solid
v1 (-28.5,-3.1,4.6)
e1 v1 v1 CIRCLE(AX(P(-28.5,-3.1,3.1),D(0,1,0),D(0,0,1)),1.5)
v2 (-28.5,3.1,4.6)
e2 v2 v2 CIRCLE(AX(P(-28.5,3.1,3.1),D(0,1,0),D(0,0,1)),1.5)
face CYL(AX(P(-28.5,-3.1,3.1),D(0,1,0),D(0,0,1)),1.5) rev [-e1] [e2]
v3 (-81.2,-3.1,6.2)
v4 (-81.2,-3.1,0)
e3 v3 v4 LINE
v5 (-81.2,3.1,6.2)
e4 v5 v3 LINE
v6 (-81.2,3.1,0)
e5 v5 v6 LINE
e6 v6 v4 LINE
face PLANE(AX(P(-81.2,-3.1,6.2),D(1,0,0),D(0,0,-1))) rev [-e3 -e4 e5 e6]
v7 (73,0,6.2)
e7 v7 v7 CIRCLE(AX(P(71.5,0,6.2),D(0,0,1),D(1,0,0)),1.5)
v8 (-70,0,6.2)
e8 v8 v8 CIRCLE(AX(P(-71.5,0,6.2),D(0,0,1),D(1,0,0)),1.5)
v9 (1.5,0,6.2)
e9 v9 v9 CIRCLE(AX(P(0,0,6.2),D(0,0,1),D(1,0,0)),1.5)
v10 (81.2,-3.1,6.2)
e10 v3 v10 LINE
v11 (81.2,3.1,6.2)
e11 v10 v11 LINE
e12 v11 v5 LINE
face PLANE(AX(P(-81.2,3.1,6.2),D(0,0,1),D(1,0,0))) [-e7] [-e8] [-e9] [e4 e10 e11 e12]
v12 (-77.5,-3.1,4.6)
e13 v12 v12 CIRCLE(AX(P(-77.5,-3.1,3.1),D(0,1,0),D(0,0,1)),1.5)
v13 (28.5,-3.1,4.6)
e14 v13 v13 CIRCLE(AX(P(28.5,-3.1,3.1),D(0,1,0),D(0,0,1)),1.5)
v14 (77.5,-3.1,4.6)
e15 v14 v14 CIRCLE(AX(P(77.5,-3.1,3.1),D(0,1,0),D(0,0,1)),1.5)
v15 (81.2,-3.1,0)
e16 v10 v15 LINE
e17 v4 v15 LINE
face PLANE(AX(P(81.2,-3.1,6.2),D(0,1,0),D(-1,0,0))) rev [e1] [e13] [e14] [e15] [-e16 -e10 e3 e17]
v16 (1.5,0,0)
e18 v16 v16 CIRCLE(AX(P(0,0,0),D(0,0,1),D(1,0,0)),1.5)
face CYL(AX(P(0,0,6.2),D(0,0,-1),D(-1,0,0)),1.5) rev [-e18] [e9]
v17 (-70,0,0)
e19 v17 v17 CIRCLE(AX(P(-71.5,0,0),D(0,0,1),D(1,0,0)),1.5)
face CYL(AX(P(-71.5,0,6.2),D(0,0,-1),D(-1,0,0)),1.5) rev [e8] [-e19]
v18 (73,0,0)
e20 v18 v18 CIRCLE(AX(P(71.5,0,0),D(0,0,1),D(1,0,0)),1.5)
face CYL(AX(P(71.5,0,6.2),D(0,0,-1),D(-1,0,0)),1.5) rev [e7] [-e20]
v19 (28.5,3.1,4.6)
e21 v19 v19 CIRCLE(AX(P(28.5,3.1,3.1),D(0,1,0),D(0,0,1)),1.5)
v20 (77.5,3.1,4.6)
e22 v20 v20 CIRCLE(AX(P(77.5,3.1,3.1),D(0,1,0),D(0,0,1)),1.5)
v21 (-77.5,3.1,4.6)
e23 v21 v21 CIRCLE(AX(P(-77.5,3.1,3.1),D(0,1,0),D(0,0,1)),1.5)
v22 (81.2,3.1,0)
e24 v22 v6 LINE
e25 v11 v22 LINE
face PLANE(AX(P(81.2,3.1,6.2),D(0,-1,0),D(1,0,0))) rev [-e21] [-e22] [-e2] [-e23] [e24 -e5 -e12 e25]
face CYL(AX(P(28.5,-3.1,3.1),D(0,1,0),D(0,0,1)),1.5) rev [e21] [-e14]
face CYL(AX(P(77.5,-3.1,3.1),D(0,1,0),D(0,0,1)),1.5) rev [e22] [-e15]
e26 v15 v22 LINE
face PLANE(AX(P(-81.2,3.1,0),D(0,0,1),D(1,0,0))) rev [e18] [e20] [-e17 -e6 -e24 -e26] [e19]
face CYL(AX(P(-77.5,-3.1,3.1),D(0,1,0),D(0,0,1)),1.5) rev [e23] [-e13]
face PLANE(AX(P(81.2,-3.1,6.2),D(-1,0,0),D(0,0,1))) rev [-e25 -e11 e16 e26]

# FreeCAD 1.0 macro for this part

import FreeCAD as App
import Part
import Sketcher
from FreeCAD import Vector
Q = App.Units.Quantity


def add_polygon(sketch, points):
    """Adds a closed chain of lines whose ends are joined by coincident constraints."""
    first, n = sketch.GeometryCount, len(points)
    for a, b in zip(points, points[1:] + points[:1]):
        sketch.addGeometry(Part.LineSegment(App.Vector(*a, 0), App.Vector(*b, 0)), False)
    for i in range(n):
        sketch.addConstraint(Sketcher.Constraint("Coincident", first + i, 2, first + (i + 1) % n, 1))

doc = App.newDocument("Part")
params = doc.addObject("Spreadsheet::Sheet", "Params")
for row, (alias, value) in enumerate([
    ("sketch1_diameter", "3 mm"),
    ("sketch1_width", "162.4 mm"),
    ("sketch1_height", "6.2 mm"),
    ("pad1_length", "6.2 mm"),
    ("sketch2_diameter", "3 mm"),
    ("pocket1_length", "6.2 mm"),
], start=1):
    params.set(f"A{row}", alias)
    params.set(f"B{row}", "=" + value)
    params.setAlias(f"B{row}", alias)

body = doc.addObject("PartDesign::Body", "Body")

sketch1 = doc.addObject("Sketcher::SketchObject", "Sketch")
body.addObject(sketch1)
sketch1.AttachmentSupport = (doc.XY_Plane, [""])
sketch1.MapMode = "FlatFace"
add_polygon(sketch1, [(-81.2, 3.1), (-81.2, -3.1), (81.2, -3.1), (81.2, 3.1)])
sketch1.addGeometry(Part.Circle(Vector(-71.5, 0, 0), Vector(0, 0, 1), 1.5), False)
sketch1.addGeometry(Part.Circle(Vector(0, 0, 0), Vector(0, 0, 1), 1.5), False)
sketch1.addGeometry(Part.Circle(Vector(71.5, 0, 0), Vector(0, 0, 1), 1.5), False)
sketch1.addConstraint([
    Sketcher.Constraint("Vertical", 0),
    Sketcher.Constraint("Horizontal", 1),
    Sketcher.Constraint("Vertical", 2),
    Sketcher.Constraint("Horizontal", 3),
    Sketcher.Constraint("Coincident", 5, 3, -1, 1),
    Sketcher.Constraint("Equal", 4, 5),
    Sketcher.Constraint("Equal", 5, 6),
    Sketcher.Constraint("Symmetric", 4, 3, 6, 3, -1, 1),
    Sketcher.Constraint("Symmetric", 0, 2, 2, 2, -1, 1),
    Sketcher.Constraint("PointOnObject", 4, 3, -1),
    Sketcher.Constraint("Diameter", 4, Q("3 mm")),
    Sketcher.Constraint("DistanceX", 1, 1, 1, 2, Q("162.4 mm")),
    Sketcher.Constraint("DistanceY", 0, 2, 0, 1, Q("6.2 mm")),
    Sketcher.Constraint("DistanceX", 4, 3, 6, 3, Q("143 mm")),
])
sketch1.setExpression("Constraints[14]", "Params.sketch1_diameter")
sketch1.setExpression("Constraints[15]", "Params.sketch1_width")
sketch1.setExpression("Constraints[16]", "Params.sketch1_height")
pad1 = doc.addObject("PartDesign::Pad", "Pad")
body.addObject(pad1)
pad1.Profile = sketch1
pad1.setExpression("Length", "Params.pad1_length")

sketch2 = doc.addObject("Sketcher::SketchObject", "Sketch001")
body.addObject(sketch2)
sketch2.AttachmentSupport = (doc.XZ_Plane, [""])
sketch2.MapMode = "FlatFace"
sketch2.AttachmentOffset = App.Placement(Vector(0, 0, -3.1), App.Rotation())
sketch2.addGeometry([
    Part.Circle(Vector(-77.5, 3.1, 0), Vector(0, 0, 1), 1.5),
    Part.Circle(Vector(-28.5, 3.1, 0), Vector(0, 0, 1), 1.5),
    Part.Circle(Vector(28.5, 3.1, 0), Vector(0, 0, 1), 1.5),
    Part.Circle(Vector(77.5, 3.1, 0), Vector(0, 0, 1), 1.5),
], False)
sketch2.addConstraint([
    Sketcher.Constraint("Equal", 0, 1),
    Sketcher.Constraint("Equal", 1, 2),
    Sketcher.Constraint("Equal", 2, 3),
    Sketcher.Constraint("Symmetric", 1, 3, 2, 3, -2),
    Sketcher.Constraint("Symmetric", 0, 3, 3, 3, -2),
    Sketcher.Constraint("Horizontal", 0, 3, 1, 3),
    Sketcher.Constraint("Diameter", 0, Q("3 mm")),
    Sketcher.Constraint("DistanceX", 0, 3, 1, 3, Q("49 mm")),
    Sketcher.Constraint("DistanceX", 1, 3, 2, 3, Q("57 mm")),
    Sketcher.Constraint("DistanceY", -1, 1, 0, 3, Q("3.1 mm")),
])
sketch2.setExpression("Constraints[6]", "Params.sketch2_diameter")
pocket1 = doc.addObject("PartDesign::Pocket", "Pocket")
body.addObject(pocket1)
pocket1.Profile = sketch2
pocket1.setExpression("Length", "Params.pocket1_length")
pocket1.Reversed = True

doc.recompute()
